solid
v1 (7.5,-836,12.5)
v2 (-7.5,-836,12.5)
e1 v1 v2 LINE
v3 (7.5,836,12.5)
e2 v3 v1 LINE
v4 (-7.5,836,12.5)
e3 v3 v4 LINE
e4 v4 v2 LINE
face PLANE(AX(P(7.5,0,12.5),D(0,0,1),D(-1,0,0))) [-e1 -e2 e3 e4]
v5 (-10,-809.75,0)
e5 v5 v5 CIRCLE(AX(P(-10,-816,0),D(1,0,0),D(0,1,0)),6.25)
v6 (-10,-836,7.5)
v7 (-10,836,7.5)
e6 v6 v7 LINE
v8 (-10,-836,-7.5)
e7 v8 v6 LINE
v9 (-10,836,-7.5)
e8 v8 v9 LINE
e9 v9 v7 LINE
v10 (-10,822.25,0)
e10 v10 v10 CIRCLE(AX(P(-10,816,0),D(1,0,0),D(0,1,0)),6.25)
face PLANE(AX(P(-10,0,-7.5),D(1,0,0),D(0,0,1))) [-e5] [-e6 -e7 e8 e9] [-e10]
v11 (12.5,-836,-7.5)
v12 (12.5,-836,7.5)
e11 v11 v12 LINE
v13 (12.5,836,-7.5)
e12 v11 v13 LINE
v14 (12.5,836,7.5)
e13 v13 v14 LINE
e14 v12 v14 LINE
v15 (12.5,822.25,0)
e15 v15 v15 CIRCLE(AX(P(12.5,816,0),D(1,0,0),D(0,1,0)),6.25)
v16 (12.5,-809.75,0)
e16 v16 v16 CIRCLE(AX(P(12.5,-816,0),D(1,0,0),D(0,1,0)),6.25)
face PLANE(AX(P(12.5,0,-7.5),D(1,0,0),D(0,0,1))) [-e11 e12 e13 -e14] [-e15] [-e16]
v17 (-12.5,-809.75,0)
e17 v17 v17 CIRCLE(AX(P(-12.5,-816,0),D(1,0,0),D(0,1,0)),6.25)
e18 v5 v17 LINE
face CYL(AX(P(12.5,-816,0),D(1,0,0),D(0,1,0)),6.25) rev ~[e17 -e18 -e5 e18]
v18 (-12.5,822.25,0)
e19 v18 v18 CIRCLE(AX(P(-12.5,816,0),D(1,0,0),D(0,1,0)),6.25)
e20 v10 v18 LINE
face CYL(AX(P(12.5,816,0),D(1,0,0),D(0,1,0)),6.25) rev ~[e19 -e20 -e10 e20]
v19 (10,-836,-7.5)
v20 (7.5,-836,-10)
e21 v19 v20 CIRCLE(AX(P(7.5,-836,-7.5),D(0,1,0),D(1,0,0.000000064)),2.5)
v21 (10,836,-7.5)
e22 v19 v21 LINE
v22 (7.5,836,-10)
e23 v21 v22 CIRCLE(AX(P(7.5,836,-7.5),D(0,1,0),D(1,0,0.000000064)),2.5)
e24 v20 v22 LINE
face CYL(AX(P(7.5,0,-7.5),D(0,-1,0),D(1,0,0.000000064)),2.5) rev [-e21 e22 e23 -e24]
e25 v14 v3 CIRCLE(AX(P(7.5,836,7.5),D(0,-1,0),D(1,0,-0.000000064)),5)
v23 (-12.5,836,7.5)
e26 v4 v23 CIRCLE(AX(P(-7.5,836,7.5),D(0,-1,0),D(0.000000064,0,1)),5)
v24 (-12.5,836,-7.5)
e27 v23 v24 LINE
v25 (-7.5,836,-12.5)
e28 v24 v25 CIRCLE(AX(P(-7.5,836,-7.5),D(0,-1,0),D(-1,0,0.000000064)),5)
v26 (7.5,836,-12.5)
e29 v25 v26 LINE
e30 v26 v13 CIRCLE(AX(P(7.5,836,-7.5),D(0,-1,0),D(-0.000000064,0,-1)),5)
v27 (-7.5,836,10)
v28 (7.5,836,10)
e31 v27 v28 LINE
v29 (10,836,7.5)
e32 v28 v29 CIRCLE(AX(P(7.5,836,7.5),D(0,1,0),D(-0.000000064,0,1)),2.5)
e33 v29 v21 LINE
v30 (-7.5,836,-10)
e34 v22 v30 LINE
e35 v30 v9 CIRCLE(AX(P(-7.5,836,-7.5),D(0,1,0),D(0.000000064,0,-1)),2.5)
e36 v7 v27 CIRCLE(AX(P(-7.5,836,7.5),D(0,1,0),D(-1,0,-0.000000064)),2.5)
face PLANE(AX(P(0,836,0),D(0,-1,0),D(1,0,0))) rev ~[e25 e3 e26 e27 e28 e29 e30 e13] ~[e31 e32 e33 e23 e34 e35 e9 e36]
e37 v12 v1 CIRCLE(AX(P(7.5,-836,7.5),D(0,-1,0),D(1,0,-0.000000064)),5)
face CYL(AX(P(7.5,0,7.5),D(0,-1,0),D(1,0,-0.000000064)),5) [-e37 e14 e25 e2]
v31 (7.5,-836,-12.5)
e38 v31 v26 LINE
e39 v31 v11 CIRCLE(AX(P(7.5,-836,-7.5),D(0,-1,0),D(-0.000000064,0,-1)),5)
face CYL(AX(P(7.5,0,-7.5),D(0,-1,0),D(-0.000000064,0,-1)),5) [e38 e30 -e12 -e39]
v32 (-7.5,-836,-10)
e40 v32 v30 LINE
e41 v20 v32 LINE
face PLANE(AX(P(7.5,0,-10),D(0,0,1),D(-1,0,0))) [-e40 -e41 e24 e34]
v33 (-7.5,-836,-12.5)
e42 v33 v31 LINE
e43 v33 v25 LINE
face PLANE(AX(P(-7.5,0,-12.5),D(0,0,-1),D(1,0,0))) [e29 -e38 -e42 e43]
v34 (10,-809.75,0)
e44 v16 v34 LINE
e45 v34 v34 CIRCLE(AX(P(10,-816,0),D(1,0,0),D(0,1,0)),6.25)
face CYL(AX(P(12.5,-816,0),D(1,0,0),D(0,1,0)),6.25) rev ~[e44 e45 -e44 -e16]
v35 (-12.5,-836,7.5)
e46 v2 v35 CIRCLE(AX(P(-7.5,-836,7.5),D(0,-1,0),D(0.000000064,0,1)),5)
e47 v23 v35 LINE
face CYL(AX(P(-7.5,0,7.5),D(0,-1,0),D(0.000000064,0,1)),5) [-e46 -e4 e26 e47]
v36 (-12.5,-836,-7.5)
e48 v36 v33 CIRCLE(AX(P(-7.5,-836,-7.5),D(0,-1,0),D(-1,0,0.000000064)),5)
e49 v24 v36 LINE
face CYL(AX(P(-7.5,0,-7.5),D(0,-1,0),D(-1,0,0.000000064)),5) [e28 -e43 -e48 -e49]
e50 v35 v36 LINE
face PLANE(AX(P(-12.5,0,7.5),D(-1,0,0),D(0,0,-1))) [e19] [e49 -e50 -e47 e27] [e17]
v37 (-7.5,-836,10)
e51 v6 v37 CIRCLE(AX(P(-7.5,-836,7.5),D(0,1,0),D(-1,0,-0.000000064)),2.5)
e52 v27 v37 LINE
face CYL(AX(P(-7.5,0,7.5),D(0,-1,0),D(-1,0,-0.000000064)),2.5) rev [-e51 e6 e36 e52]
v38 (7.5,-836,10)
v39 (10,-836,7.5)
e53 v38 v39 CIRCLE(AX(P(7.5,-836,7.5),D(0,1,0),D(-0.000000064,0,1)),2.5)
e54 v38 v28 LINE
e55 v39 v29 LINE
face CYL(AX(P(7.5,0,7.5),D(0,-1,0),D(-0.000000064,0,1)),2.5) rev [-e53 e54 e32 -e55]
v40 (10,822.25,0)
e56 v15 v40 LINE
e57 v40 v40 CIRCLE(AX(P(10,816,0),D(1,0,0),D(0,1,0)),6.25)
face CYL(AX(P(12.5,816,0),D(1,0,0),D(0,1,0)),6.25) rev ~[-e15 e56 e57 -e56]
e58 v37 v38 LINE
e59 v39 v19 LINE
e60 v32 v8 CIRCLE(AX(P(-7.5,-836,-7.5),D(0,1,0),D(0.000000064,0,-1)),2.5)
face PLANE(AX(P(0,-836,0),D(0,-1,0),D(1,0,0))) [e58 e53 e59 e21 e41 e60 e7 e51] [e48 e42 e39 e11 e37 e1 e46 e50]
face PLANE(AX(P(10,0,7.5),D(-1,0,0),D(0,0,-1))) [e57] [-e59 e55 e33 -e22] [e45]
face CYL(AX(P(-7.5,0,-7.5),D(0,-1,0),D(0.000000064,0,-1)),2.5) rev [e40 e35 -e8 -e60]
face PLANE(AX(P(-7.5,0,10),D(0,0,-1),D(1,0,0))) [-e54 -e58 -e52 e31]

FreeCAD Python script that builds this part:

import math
import FreeCAD as App
import Part
import Sketcher
Q = App.Units.Quantity

doc = App.newDocument("Part")
body = doc.addObject("PartDesign::Body", "Body")

# Sketch on XZ plane
sketch1 = body.newObject("Sketcher::SketchObject", "Sketch")
sketch1.AttachmentSupport = (doc.getObject("XZ_Plane"), [""])
sketch1.MapMode = "FlatFace"
sketch1.addGeometry([
    Part.ArcOfCircle(Part.Circle(App.Vector(7.5, 7.5, 0), App.Vector(0, 0, 1), 5), math.radians(-0.000004), math.radians(90.000004)),  # 0
    Part.LineSegment(App.Vector(7.5, 12.5, 0), App.Vector(-7.5, 12.5, 0)),  # 1
    Part.ArcOfCircle(Part.Circle(App.Vector(-7.5, 7.5, 0), App.Vector(0, 0, 1), 5), math.radians(89.999996), math.radians(180.000004)),  # 2
    Part.LineSegment(App.Vector(-12.5, 7.5, 0), App.Vector(-12.5, -7.5, 0)),  # 3
    Part.ArcOfCircle(Part.Circle(App.Vector(-7.5, -7.5, 0), App.Vector(0, 0, 1), 5), math.radians(179.999996), math.radians(270.000004)),  # 4
    Part.LineSegment(App.Vector(-7.5, -12.5, 0), App.Vector(7.5, -12.5, 0)),  # 5
    Part.ArcOfCircle(Part.Circle(App.Vector(7.5, -7.5, 0), App.Vector(0, 0, 1), 5), math.radians(-90.000004), math.radians(0.000004)),  # 6
    Part.LineSegment(App.Vector(12.5, -7.5, 0), App.Vector(12.5, 7.5, 0)),  # 7
    Part.ArcOfCircle(Part.Circle(App.Vector(-7.5, 7.5, 0), App.Vector(0, 0, 1), 2.5), math.radians(89.999996), math.radians(180.000004)),  # 8
    Part.LineSegment(App.Vector(-7.5, 10, 0), App.Vector(7.5, 10, 0)),  # 9
    Part.ArcOfCircle(Part.Circle(App.Vector(7.5, 7.5, 0), App.Vector(0, 0, 1), 2.5), math.radians(-0.000004), math.radians(90.000004)),  # 10
    Part.LineSegment(App.Vector(10, 7.5, 0), App.Vector(10, -7.5, 0)),  # 11
    Part.ArcOfCircle(Part.Circle(App.Vector(7.5, -7.5, 0), App.Vector(0, 0, 1), 2.5), math.radians(-90.000004), math.radians(0.000004)),  # 12
    Part.LineSegment(App.Vector(7.5, -10, 0), App.Vector(-7.5, -10, 0)),  # 13
    Part.ArcOfCircle(Part.Circle(App.Vector(-7.5, -7.5, 0), App.Vector(0, 0, 1), 2.5), math.radians(179.999996), math.radians(270.000004)),  # 14
    Part.LineSegment(App.Vector(-10, -7.5, 0), App.Vector(-10, 7.5, 0)),  # 15
], False)
sketch1.addConstraint([
    Sketcher.Constraint("Tangent", 0, 2, 1, 1),
    Sketcher.Constraint("Tangent", 1, 2, 2, 1),
    Sketcher.Constraint("Tangent", 2, 2, 3, 1),
    Sketcher.Constraint("Tangent", 3, 2, 4, 1),
    Sketcher.Constraint("Tangent", 4, 2, 5, 1),
    Sketcher.Constraint("Tangent", 5, 2, 6, 1),
    Sketcher.Constraint("Tangent", 6, 2, 7, 1),
    Sketcher.Constraint("Tangent", 7, 2, 0, 1),
    Sketcher.Constraint("Tangent", 8, 1, 9, 1),
    Sketcher.Constraint("Tangent", 9, 2, 10, 2),
    Sketcher.Constraint("Tangent", 10, 1, 11, 1),
    Sketcher.Constraint("Tangent", 11, 2, 12, 2),
    Sketcher.Constraint("Tangent", 12, 1, 13, 1),
    Sketcher.Constraint("Tangent", 13, 2, 14, 2),
    Sketcher.Constraint("Tangent", 14, 1, 15, 1),
    Sketcher.Constraint("Tangent", 15, 2, 8, 2),
    Sketcher.Constraint("Horizontal", 1),
    Sketcher.Constraint("Vertical", 3),
    Sketcher.Constraint("Horizontal", 5),
    Sketcher.Constraint("Vertical", 7),
    Sketcher.Constraint("Horizontal", 9),
    Sketcher.Constraint("Vertical", 11),
    Sketcher.Constraint("Horizontal", 13),
    Sketcher.Constraint("Vertical", 15),
    Sketcher.Constraint("Coincident", 8, 3, 2, 3),
    Sketcher.Constraint("Coincident", 10, 3, 0, 3),
    Sketcher.Constraint("Coincident", 12, 3, 6, 3),
    Sketcher.Constraint("Equal", 0, 2),
    Sketcher.Constraint("Equal", 2, 4),
    Sketcher.Constraint("Equal", 4, 6),
    Sketcher.Constraint("Equal", 12, 14),
    Sketcher.Constraint("Symmetric", 0, 3, 4, 3, -1, 1),
    Sketcher.Constraint("Equal", 13, 3),
    Sketcher.Constraint("Radius", 0, Q("5 mm")),
    Sketcher.Constraint("Radius", 8, Q("2.5 mm")),
    Sketcher.Constraint("DistanceX", 1, 2, 1, 1, Q("15 mm")),
])
pad1 = body.newObject("PartDesign::Pad", "Pad")
pad1.Profile = sketch1
pad1.Length = 1672
pad1.Midplane = True

# Sketch on YZ plane
sketch2 = body.newObject("Sketcher::SketchObject", "Sketch001")
sketch2.AttachmentSupport = (doc.getObject("YZ_Plane"), [""])
sketch2.MapMode = "FlatFace"
sketch2.AttachmentOffset = App.Placement(App.Vector(0, 0, 12.5), App.Rotation())
sketch2.addGeometry([
    Part.Circle(App.Vector(-816, 0, 0), App.Vector(0, 0, 1), 6.25),
    Part.Circle(App.Vector(816, 0, 0), App.Vector(0, 0, 1), 6.25),
], False)
sketch2.addConstraint([
    Sketcher.Constraint("Equal", 0, 1),
    Sketcher.Constraint("Symmetric", 0, 3, 1, 3, -1, 1),
    Sketcher.Constraint("PointOnObject", 0, 3, -1),
    Sketcher.Constraint("Diameter", 0, Q("12.5 mm")),
    Sketcher.Constraint("DistanceX", 0, 3, -1, 1, Q("816 mm")),
])
pocket1 = body.newObject("PartDesign::Pocket", "Pocket")
pocket1.Profile = sketch2
pocket1.Type = "ThroughAll"

doc.recompute()
